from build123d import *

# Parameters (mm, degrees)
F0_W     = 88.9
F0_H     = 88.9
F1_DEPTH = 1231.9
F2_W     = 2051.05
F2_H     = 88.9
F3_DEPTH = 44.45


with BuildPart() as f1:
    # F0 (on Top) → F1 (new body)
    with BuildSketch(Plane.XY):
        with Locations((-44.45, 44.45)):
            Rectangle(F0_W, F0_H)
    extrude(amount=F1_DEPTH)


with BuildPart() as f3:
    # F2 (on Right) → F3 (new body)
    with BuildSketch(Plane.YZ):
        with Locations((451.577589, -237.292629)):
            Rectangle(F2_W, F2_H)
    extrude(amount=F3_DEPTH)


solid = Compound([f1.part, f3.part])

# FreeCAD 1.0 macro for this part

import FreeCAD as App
import Part
import Sketcher

V = App.Vector
Q = App.Units.Quantity

doc = App.newDocument("Part")
body = doc.addObject("PartDesign::Body", "Body")

sketch1 = body.newObject("Sketcher::SketchObject", "Sketch")
sketch1.AttachmentSupport = (doc.getObject("XY_Plane"), [""])
sketch1.MapMode = "FlatFace"
sketch1.addGeometry(Part.LineSegment(V(-89, 89, 0), V(-89, 0, 0)), False)
sketch1.addGeometry(Part.LineSegment(V(-89, 0, 0), V(0, 0, 0)), False)
sketch1.addGeometry(Part.LineSegment(V(0, 0, 0), V(0, 89, 0)), False)
sketch1.addGeometry(Part.LineSegment(V(0, 89, 0), V(-89, 89, 0)), False)
sketch1.addConstraint(Sketcher.Constraint("Coincident", 0, 2, 1, 1))
sketch1.addConstraint(Sketcher.Constraint("Coincident", 1, 2, 2, 1))
sketch1.addConstraint(Sketcher.Constraint("Coincident", 2, 2, 3, 1))
sketch1.addConstraint(Sketcher.Constraint("Coincident", 3, 2, 0, 1))
sketch1.addConstraint(Sketcher.Constraint("Vertical", 0))
sketch1.addConstraint(Sketcher.Constraint("Horizontal", 1))
sketch1.addConstraint(Sketcher.Constraint("Vertical", 2))
sketch1.addConstraint(Sketcher.Constraint("Horizontal", 3))
sketch1.addConstraint(Sketcher.Constraint("Coincident", 1, 2, -1, 1))
sketch1.addConstraint(Sketcher.Constraint("Equal", 3, 0))
sketch1.addConstraint(Sketcher.Constraint("DistanceX", 1, 1, 1, 2, Q("3.5 in")))
pad1 = body.newObject("PartDesign::Pad", "Pad")
pad1.Profile = sketch1
pad1.Length = Q("48.5 in")
body2 = doc.addObject("PartDesign::Body", "Body001")

sketch2 = body2.newObject("Sketcher::SketchObject", "Sketch001")
sketch2.AttachmentSupport = (doc.getObject("YZ_Plane001"), [""])
sketch2.MapMode = "FlatFace"
sketch2.addGeometry(Part.LineSegment(V(-574, -193, 0), V(-574, -282, 0)), False)
sketch2.addGeometry(Part.LineSegment(V(-574, -282, 0), V(1477, -282, 0)), False)
sketch2.addGeometry(Part.LineSegment(V(1477, -282, 0), V(1477, -193, 0)), False)
sketch2.addGeometry(Part.LineSegment(V(1477, -193, 0), V(-574, -193, 0)), False)
sketch2.addConstraint(Sketcher.Constraint("Coincident", 0, 2, 1, 1))
sketch2.addConstraint(Sketcher.Constraint("Coincident", 1, 2, 2, 1))
sketch2.addConstraint(Sketcher.Constraint("Coincident", 2, 2, 3, 1))
sketch2.addConstraint(Sketcher.Constraint("Coincident", 3, 2, 0, 1))
sketch2.addConstraint(Sketcher.Constraint("Vertical", 0))
sketch2.addConstraint(Sketcher.Constraint("Horizontal", 1))
sketch2.addConstraint(Sketcher.Constraint("Vertical", 2))
sketch2.addConstraint(Sketcher.Constraint("Horizontal", 3))
sketch2.addConstraint(Sketcher.Constraint("DistanceY", 0, 2, 0, 1, Q("3.5 in")))
sketch2.addConstraint(Sketcher.Constraint("DistanceX", 1, 1, 1, 2, Q("80.75 in")))
sketch2.addConstraint(Sketcher.Constraint("DistanceX", 0, 2, -1, 1, 573.947411))
sketch2.addConstraint(Sketcher.Constraint("DistanceY", 0, 2, -1, 1, 281.742629))
pad2 = body2.newObject("PartDesign::Pad", "Pad001")
pad2.Profile = sketch2
pad2.Length = Q("1.75 in")

doc.recompute()
